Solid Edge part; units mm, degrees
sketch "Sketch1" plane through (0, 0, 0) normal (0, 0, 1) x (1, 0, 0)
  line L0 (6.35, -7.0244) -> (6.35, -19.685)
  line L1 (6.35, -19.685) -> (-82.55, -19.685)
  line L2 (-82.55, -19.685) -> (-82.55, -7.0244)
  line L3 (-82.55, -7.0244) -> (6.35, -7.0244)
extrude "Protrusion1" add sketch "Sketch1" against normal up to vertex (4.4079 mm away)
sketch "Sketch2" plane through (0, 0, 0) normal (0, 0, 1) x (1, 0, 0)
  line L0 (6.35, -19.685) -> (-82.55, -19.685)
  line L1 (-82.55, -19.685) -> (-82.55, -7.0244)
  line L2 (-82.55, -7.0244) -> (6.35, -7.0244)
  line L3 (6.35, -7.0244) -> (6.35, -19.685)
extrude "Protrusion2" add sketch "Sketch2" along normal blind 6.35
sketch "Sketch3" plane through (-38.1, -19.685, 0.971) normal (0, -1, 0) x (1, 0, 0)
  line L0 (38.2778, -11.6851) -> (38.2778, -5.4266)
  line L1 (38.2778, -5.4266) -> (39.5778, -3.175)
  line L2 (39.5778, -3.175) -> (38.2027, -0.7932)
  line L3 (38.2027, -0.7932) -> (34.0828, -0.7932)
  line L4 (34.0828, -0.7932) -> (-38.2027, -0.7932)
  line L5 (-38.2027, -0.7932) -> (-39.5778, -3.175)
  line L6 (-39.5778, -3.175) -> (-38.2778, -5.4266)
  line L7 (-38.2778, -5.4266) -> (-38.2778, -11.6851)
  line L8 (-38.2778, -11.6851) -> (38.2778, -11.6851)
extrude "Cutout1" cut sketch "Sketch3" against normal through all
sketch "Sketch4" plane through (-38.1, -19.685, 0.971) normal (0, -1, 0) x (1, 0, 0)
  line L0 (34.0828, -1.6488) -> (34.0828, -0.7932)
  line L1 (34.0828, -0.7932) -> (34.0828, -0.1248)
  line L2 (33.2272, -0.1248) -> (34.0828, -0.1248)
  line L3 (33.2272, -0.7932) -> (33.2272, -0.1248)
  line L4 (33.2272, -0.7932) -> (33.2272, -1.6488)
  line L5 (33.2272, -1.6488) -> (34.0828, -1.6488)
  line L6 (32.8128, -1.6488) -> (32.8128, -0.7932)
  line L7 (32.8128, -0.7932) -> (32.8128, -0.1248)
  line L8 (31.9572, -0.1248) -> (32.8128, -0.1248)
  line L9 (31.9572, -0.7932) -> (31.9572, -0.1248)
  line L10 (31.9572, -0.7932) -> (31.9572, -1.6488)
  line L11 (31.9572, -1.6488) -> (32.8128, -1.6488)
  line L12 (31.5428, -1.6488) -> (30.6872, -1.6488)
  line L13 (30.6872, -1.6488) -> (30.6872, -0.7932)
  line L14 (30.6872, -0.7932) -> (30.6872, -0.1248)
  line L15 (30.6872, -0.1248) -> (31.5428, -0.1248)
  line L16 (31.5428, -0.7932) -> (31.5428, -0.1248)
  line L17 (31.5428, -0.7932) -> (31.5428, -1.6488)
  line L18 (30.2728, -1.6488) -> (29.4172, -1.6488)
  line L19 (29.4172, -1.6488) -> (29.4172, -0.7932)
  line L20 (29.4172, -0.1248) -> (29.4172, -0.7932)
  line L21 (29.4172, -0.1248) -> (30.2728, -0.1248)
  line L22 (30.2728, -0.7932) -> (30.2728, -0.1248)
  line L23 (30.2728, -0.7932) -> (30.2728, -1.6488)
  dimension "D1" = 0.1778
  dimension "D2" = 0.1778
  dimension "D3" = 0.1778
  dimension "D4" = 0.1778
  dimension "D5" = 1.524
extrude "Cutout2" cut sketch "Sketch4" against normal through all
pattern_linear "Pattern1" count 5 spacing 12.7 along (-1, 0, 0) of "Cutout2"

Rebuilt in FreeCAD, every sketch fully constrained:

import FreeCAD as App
import Part
import Sketcher
from FreeCAD import Vector
Q = App.Units.Quantity

doc = App.newDocument("Part")
params = doc.addObject("Spreadsheet::Sheet", "Params")
for row, (alias, value) in enumerate([
    ("sketch1_width", "3.5 in"),
    ("pad1_length", "4.4079 mm"),
    ("sketch2_width", "3.5 in"),
    ("pad2_length", "0.25 in"),
    ("sketch3_width", "3.014 in"),
    ("sketch4_height", "0.06 in"),
    ("linearpattern_pitch", "0.5 in"),
], start=1):
    params.set(f"A{row}", alias)
    params.set(f"B{row}", "=" + value)
    params.setAlias(f"B{row}", alias)

body = doc.addObject("PartDesign::Body", "Body")

# Sketch on XY plane
sketch1 = body.newObject("Sketcher::SketchObject", "Sketch")
sketch1.AttachmentSupport = (doc.getObject("XY_Plane"), [""])
sketch1.MapMode = "FlatFace"
sketch1.addGeometry([
    Part.LineSegment(Vector(6.35, -19.685, 0), Vector(6.35, -7.0244, 0)),
    Part.LineSegment(Vector(6.35, -7.0244, 0), Vector(-82.55, -7.0244, 0)),
    Part.LineSegment(Vector(-82.55, -7.0244, 0), Vector(-82.55, -19.685, 0)),
    Part.LineSegment(Vector(-82.55, -19.685, 0), Vector(6.35, -19.685, 0)),
], False)
sketch1.addConstraint([
    Sketcher.Constraint("Coincident", 0, 2, 1, 1),
    Sketcher.Constraint("Coincident", 1, 2, 2, 1),
    Sketcher.Constraint("Coincident", 2, 2, 3, 1),
    Sketcher.Constraint("Coincident", 3, 2, 0, 1),
    Sketcher.Constraint("Vertical", 0),
    Sketcher.Constraint("Horizontal", 1),
    Sketcher.Constraint("Vertical", 2),
    Sketcher.Constraint("Horizontal", 3),
    Sketcher.Constraint("DistanceX", 1, 2, 1, 1, Q("3.5 in")),
    Sketcher.Constraint("DistanceX", -1, 1, 0, 2, Q("0.25 in")),
    Sketcher.Constraint("DistanceY", 2, 2, -1, 1, Q("0.775 in")),
    Sketcher.Constraint("DistanceY", 0, 1, 0, 2, 12.6606),
])
sketch1.setExpression("Constraints[8]", "Params.sketch1_width")
pad1 = body.newObject("PartDesign::Pad", "Pad")
pad1.Profile = sketch1
pad1.setExpression("Length", "Params.pad1_length")
pad1.Reversed = True

# Sketch on XY plane
sketch2 = body.newObject("Sketcher::SketchObject", "Sketch001")
sketch2.AttachmentSupport = (doc.getObject("XY_Plane"), [""])
sketch2.MapMode = "FlatFace"
sketch2.addGeometry([
    Part.LineSegment(Vector(-82.55, -19.685, 0), Vector(6.35, -19.685, 0)),
    Part.LineSegment(Vector(6.35, -19.685, 0), Vector(6.35, -7.0244, 0)),
    Part.LineSegment(Vector(6.35, -7.0244, 0), Vector(-82.55, -7.0244, 0)),
    Part.LineSegment(Vector(-82.55, -7.0244, 0), Vector(-82.55, -19.685, 0)),
], False)
sketch2.addConstraint([
    Sketcher.Constraint("Coincident", 0, 2, 1, 1),
    Sketcher.Constraint("Coincident", 1, 2, 2, 1),
    Sketcher.Constraint("Coincident", 2, 2, 3, 1),
    Sketcher.Constraint("Coincident", 3, 2, 0, 1),
    Sketcher.Constraint("Horizontal", 0),
    Sketcher.Constraint("Vertical", 1),
    Sketcher.Constraint("Horizontal", 2),
    Sketcher.Constraint("Vertical", 3),
    Sketcher.Constraint("DistanceX", 0, 1, 0, 2, Q("3.5 in")),
    Sketcher.Constraint("DistanceX", -1, 1, 0, 2, Q("0.25 in")),
    Sketcher.Constraint("DistanceY", 0, 2, -1, 1, Q("0.775 in")),
    Sketcher.Constraint("DistanceY", 1, 1, 1, 2, 12.6606),
])
sketch2.setExpression("Constraints[8]", "Params.sketch2_width")
pad2 = body.newObject("PartDesign::Pad", "Pad001")
pad2.Profile = sketch2
pad2.setExpression("Length", "Params.pad2_length")

# Sketch on XZ plane
sketch3 = body.newObject("Sketcher::SketchObject", "Sketch002")
sketch3.AttachmentSupport = (doc.getObject("XZ_Plane"), [""])
sketch3.MapMode = "FlatFace"
sketch3.AttachmentOffset = App.Placement(Vector(0, 0, 0.775 * 25.4), App.Rotation())
sketch3.addGeometry([
    Part.LineSegment(Vector(-76.3778, -10.7141, 0), Vector(0.1778, -10.7141, 0)),  # 0
    Part.LineSegment(Vector(0.1778, -10.7141, 0), Vector(0.1778, -4.4556, 0)),  # 1
    Part.LineSegment(Vector(0.1778, -4.4556, 0), Vector(1.4778, -2.204, 0)),  # 2
    Part.LineSegment(Vector(1.4778, -2.204, 0), Vector(0.1027, 0.1778, 0)),  # 3
    Part.LineSegment(Vector(0.1027, 0.1778, 0), Vector(-76.3027, 0.1778, 0)),  # 4
    Part.LineSegment(Vector(-76.3027, 0.1778, 0), Vector(-77.6778, -2.204, 0)),  # 5
    Part.LineSegment(Vector(-77.6778, -2.204, 0), Vector(-76.3778, -4.4556, 0)),  # 6
    Part.LineSegment(Vector(-76.3778, -4.4556, 0), Vector(-76.3778, -10.7141, 0)),  # 7
], False)
sketch3.addConstraint([
    Sketcher.Constraint("Coincident", 0, 2, 1, 1),
    Sketcher.Constraint("Coincident", 1, 2, 2, 1),
    Sketcher.Constraint("Coincident", 2, 2, 3, 1),
    Sketcher.Constraint("Coincident", 3, 2, 4, 1),
    Sketcher.Constraint("Coincident", 4, 2, 5, 1),
    Sketcher.Constraint("Coincident", 5, 2, 6, 1),
    Sketcher.Constraint("Coincident", 6, 2, 7, 1),
    Sketcher.Constraint("Coincident", 7, 2, 0, 1),
    Sketcher.Constraint("Horizontal", 0),
    Sketcher.Constraint("Vertical", 1),
    Sketcher.Constraint("Horizontal", 4),
    Sketcher.Constraint("Vertical", 7),
    Sketcher.Constraint("Parallel", 2, 5),
    Sketcher.Constraint("Parallel", 3, 6),
    Sketcher.Constraint("Horizontal", 2, 2, 5, 2),
    Sketcher.Constraint("Horizontal", 1, 2, 6, 2),
    Sketcher.Constraint("Equal", 3, 5),
    Sketcher.Constraint("Angle", 2, Q("59.9993 deg")),
    Sketcher.Constraint("DistanceX", 0, 1, 0, 2, Q("3.014 in")),
    Sketcher.Constraint("DistanceY", 1, 1, 1, 2, Q("0.2464 in")),
    Sketcher.Constraint("DistanceX", -1, 1, 0, 2, Q("0.007 in")),
    Sketcher.Constraint("DistanceY", -1, 1, 3, 2, Q("0.007 in")),
    Sketcher.Constraint("DistanceX", 4, 2, 4, 1, 76.4054),
    Sketcher.Constraint("Distance", 2, 2.6),
])
sketch3.setExpression("Constraints[18]", "Params.sketch3_width")
pocket1 = body.newObject("PartDesign::Pocket", "Pocket")
pocket1.Profile = sketch3
pocket1.Type = "ThroughAll"

# Sketch on XZ plane
sketch4 = body.newObject("Sketcher::SketchObject", "Sketch003")
sketch4.AttachmentSupport = (doc.getObject("XZ_Plane"), [""])
sketch4.MapMode = "FlatFace"
sketch4.AttachmentOffset = App.Placement(Vector(0, 0, 0.775 * 25.4), App.Rotation())
sketch4.addGeometry([
    Part.LineSegment(Vector(-4.8728, -0.6778, 0), Vector(-4.0172, -0.6778, 0)),  # 0
    Part.LineSegment(Vector(-4.0172, -0.6778, 0), Vector(-4.0172, 0.8462, 0)),  # 1
    Part.LineSegment(Vector(-4.0172, 0.8462, 0), Vector(-4.8728, 0.8462, 0)),  # 2
    Part.LineSegment(Vector(-4.8728, 0.8462, 0), Vector(-4.8728, -0.6778, 0)),  # 3
    Part.LineSegment(Vector(-6.1428, -0.6778, 0), Vector(-5.2872, -0.6778, 0)),  # 4
    Part.LineSegment(Vector(-5.2872, -0.6778, 0), Vector(-5.2872, 0.8462, 0)),  # 5
    Part.LineSegment(Vector(-5.2872, 0.8462, 0), Vector(-6.1428, 0.8462, 0)),  # 6
    Part.LineSegment(Vector(-6.1428, 0.8462, 0), Vector(-6.1428, -0.6778, 0)),  # 7
    Part.LineSegment(Vector(-7.4128, -0.6778, 0), Vector(-6.5572, -0.6778, 0)),  # 8
    Part.LineSegment(Vector(-6.5572, -0.6778, 0), Vector(-6.5572, 0.8462, 0)),  # 9
    Part.LineSegment(Vector(-6.5572, 0.8462, 0), Vector(-7.4128, 0.8462, 0)),  # 10
    Part.LineSegment(Vector(-7.4128, 0.8462, 0), Vector(-7.4128, -0.6778, 0)),  # 11
    Part.LineSegment(Vector(-8.6828, -0.6778, 0), Vector(-7.8272, -0.6778, 0)),  # 12
    Part.LineSegment(Vector(-7.8272, -0.6778, 0), Vector(-7.8272, 0.8462, 0)),  # 13
    Part.LineSegment(Vector(-7.8272, 0.8462, 0), Vector(-8.6828, 0.8462, 0)),  # 14
    Part.LineSegment(Vector(-8.6828, 0.8462, 0), Vector(-8.6828, -0.6778, 0)),  # 15
], False)
sketch4.addConstraint([
    Sketcher.Constraint("Coincident", 0, 2, 1, 1),
    Sketcher.Constraint("Coincident", 1, 2, 2, 1),
    Sketcher.Constraint("Coincident", 2, 2, 3, 1),
    Sketcher.Constraint("Coincident", 3, 2, 0, 1),
    Sketcher.Constraint("Coincident", 4, 2, 5, 1),
    Sketcher.Constraint("Coincident", 5, 2, 6, 1),
    Sketcher.Constraint("Coincident", 6, 2, 7, 1),
    Sketcher.Constraint("Coincident", 7, 2, 4, 1),
    Sketcher.Constraint("Coincident", 8, 2, 9, 1),
    Sketcher.Constraint("Coincident", 9, 2, 10, 1),
    Sketcher.Constraint("Coincident", 10, 2, 11, 1),
    Sketcher.Constraint("Coincident", 11, 2, 8, 1),
    Sketcher.Constraint("Coincident", 12, 2, 13, 1),
    Sketcher.Constraint("Coincident", 13, 2, 14, 1),
    Sketcher.Constraint("Coincident", 14, 2, 15, 1),
    Sketcher.Constraint("Coincident", 15, 2, 12, 1),
    Sketcher.Constraint("Horizontal", 0),
    Sketcher.Constraint("Vertical", 1),
    Sketcher.Constraint("Horizontal", 2),
    Sketcher.Constraint("Vertical", 3),
    Sketcher.Constraint("Horizontal", 4),
    Sketcher.Constraint("Vertical", 5),
    Sketcher.Constraint("Horizontal", 6),
    Sketcher.Constraint("Vertical", 7),
    Sketcher.Constraint("Horizontal", 8),
    Sketcher.Constraint("Vertical", 9),
    Sketcher.Constraint("Horizontal", 10),
    Sketcher.Constraint("Vertical", 11),
    Sketcher.Constraint("Horizontal", 12),
    Sketcher.Constraint("Vertical", 13),
    Sketcher.Constraint("Horizontal", 14),
    Sketcher.Constraint("Vertical", 15),
    Sketcher.Constraint("Horizontal", 3, 2, 4, 2),
    Sketcher.Constraint("Horizontal", 2, 2, 5, 2),
    Sketcher.Constraint("Horizontal", 7, 2, 8, 2),
    Sketcher.Constraint("Horizontal", 6, 2, 9, 2),
    Sketcher.Constraint("Horizontal", 11, 2, 12, 2),
    Sketcher.Constraint("Horizontal", 10, 2, 13, 2),
    Sketcher.Constraint("Equal", 2, 4),
    Sketcher.Constraint("Equal", 6, 8),
    Sketcher.Constraint("Equal", 10, 12),
    Sketcher.Constraint("DistanceY", 1, 1, 1, 2, Q("0.06 in")),
    Sketcher.Constraint("DistanceX", 4, 2, 0, 2, Q("0.05 in")),
    Sketcher.Constraint("DistanceX", 8, 2, 4, 2, Q("0.05 in")),
    Sketcher.Constraint("DistanceX", 12, 2, 8, 2, Q("0.05 in")),
    Sketcher.Constraint("DistanceX", 0, 1, 0, 2, 0.8556),
    Sketcher.Constraint("DistanceX", 0, 2, -1, 1, 4.0172),
    Sketcher.Constraint("DistanceY", 0, 2, -1, 1, 0.6778),
])
sketch4.setExpression("Constraints[41]", "Params.sketch4_height")
pocket2 = body.newObject("PartDesign::Pocket", "Pocket001")
pocket2.Profile = sketch4
pocket2.Type = "ThroughAll"
doc.recompute()

linearpattern = body.newObject("PartDesign::LinearPattern", "LinearPattern")
linearpattern.Originals = [pocket2]
linearpattern.Direction = (doc.getObject("X_Axis"), [""])
linearpattern.Mode = "offset"
linearpattern.setExpression("Offset", "Params.linearpattern_pitch")
linearpattern.Occurrences = 5
linearpattern.Reversed = True
body.Tip = linearpattern

doc.recompute()
